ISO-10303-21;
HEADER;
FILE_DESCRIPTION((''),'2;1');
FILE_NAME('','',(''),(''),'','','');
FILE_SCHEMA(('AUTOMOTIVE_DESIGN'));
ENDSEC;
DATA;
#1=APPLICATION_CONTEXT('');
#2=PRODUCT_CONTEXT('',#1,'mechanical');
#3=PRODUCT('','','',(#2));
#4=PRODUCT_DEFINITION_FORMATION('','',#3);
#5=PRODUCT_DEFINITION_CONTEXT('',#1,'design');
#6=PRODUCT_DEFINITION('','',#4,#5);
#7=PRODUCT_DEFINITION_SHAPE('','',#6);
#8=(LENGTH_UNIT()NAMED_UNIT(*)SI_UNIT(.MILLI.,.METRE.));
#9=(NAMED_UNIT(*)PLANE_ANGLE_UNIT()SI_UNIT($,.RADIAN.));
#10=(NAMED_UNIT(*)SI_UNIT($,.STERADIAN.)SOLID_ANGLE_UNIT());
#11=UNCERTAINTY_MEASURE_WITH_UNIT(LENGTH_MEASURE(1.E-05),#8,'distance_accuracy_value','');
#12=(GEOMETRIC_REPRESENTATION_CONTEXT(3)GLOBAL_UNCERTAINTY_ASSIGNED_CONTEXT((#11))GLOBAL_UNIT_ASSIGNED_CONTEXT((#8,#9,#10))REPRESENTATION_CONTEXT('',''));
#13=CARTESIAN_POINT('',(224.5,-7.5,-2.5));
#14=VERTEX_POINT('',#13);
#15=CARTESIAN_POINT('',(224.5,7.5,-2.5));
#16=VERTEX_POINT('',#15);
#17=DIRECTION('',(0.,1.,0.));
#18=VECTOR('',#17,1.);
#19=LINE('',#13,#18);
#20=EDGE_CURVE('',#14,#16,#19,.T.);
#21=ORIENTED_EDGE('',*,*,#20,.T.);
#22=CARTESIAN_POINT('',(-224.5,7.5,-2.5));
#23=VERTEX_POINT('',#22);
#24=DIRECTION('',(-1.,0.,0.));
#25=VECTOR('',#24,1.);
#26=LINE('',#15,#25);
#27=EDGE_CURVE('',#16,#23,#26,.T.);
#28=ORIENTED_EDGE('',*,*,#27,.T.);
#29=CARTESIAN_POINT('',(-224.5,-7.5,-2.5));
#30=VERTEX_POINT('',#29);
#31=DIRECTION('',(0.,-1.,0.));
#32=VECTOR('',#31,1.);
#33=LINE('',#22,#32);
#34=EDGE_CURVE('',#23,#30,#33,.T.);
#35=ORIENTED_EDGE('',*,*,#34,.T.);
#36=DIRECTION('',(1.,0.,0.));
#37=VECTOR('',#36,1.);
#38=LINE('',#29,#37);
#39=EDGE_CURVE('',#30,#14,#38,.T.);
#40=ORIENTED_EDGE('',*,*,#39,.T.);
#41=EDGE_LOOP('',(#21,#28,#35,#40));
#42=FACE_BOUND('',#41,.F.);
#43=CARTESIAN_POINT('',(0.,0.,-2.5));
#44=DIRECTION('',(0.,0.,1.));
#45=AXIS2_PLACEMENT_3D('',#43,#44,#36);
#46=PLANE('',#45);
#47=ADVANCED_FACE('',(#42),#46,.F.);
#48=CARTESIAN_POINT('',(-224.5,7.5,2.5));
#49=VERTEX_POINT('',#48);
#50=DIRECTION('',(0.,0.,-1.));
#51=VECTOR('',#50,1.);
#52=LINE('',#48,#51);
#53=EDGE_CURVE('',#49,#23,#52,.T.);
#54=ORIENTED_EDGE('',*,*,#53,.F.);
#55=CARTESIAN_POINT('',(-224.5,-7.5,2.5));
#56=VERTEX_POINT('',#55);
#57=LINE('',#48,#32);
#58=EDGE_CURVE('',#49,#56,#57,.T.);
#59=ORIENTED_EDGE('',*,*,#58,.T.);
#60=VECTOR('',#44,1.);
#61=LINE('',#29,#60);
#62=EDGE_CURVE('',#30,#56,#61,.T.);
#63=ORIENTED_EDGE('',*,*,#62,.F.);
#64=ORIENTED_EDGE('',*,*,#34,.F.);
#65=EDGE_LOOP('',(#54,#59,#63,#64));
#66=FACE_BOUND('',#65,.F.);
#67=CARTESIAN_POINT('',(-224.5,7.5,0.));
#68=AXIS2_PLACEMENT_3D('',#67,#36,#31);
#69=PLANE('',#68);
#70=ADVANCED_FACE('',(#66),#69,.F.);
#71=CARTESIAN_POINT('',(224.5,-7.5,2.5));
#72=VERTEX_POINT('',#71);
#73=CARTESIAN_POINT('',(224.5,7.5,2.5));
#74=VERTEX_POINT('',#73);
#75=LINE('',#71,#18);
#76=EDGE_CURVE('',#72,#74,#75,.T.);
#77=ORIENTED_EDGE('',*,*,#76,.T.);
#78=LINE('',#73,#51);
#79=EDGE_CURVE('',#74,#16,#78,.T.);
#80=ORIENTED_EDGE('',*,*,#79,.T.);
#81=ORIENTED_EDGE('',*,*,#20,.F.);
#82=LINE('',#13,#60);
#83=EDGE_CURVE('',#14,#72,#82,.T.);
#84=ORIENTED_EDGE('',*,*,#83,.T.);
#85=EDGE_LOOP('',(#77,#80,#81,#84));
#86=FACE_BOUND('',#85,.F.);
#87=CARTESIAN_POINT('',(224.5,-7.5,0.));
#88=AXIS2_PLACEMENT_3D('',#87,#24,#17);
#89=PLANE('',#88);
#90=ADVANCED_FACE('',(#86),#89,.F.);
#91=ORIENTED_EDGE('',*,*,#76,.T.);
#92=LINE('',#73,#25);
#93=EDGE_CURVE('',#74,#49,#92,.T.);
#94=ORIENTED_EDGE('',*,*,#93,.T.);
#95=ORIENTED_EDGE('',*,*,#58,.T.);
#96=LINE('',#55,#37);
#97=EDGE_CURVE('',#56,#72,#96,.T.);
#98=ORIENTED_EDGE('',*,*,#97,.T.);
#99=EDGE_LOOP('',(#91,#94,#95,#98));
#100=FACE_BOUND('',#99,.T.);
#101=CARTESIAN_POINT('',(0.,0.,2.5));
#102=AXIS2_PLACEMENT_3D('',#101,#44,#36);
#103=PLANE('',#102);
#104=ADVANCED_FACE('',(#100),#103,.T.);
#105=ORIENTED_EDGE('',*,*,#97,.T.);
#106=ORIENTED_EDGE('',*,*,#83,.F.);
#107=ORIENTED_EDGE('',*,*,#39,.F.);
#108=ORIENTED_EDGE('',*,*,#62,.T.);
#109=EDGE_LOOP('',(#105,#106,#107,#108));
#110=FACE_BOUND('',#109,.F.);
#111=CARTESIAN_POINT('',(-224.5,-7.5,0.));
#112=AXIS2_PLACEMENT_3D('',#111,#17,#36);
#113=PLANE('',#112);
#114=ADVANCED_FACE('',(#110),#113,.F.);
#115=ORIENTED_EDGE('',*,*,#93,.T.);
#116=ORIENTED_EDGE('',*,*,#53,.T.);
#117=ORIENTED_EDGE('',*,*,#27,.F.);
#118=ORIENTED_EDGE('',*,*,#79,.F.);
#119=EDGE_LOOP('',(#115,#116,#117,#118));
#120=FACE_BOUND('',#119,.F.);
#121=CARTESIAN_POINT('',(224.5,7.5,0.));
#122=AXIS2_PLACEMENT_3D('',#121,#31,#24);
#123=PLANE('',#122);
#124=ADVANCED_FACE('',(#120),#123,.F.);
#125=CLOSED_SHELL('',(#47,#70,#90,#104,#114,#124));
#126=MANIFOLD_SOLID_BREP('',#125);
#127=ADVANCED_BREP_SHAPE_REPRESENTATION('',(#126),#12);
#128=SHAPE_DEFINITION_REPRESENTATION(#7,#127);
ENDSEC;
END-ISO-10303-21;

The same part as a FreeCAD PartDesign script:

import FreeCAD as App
import Part
import Sketcher

doc = App.newDocument("Part")
body = doc.addObject("PartDesign::Body", "Body")

# Sketch on XY plane
sketch1 = body.newObject("Sketcher::SketchObject", "Sketch")
sketch1.AttachmentSupport = (doc.getObject("XY_Plane"), [""])
sketch1.MapMode = "FlatFace"
sketch1.addGeometry(Part.LineSegment(App.Vector(-224, 8, 0), App.Vector(-224, -8, 0)), False)
sketch1.addGeometry(Part.LineSegment(App.Vector(-224, -8, 0), App.Vector(224, -8, 0)), False)
sketch1.addGeometry(Part.LineSegment(App.Vector(224, -8, 0), App.Vector(224, 8, 0)), False)
sketch1.addGeometry(Part.LineSegment(App.Vector(224, 8, 0), App.Vector(-224, 8, 0)), False)
sketch1.addConstraint(Sketcher.Constraint("Coincident", 0, 2, 1, 1))
sketch1.addConstraint(Sketcher.Constraint("Coincident", 1, 2, 2, 1))
sketch1.addConstraint(Sketcher.Constraint("Coincident", 2, 2, 3, 1))
sketch1.addConstraint(Sketcher.Constraint("Coincident", 3, 2, 0, 1))
sketch1.addConstraint(Sketcher.Constraint("Vertical", 0))
sketch1.addConstraint(Sketcher.Constraint("Horizontal", 1))
sketch1.addConstraint(Sketcher.Constraint("Vertical", 2))
sketch1.addConstraint(Sketcher.Constraint("Horizontal", 3))
sketch1.addConstraint(Sketcher.Constraint("Symmetric", 0, 2, 2, 2, -1, 1))
sketch1.addConstraint(Sketcher.Constraint("DistanceX", 1, 1, 1, 2, 449.0))
sketch1.addConstraint(Sketcher.Constraint("DistanceY", 0, 2, 0, 1, 15.0))
pad1 = body.newObject("PartDesign::Pad", "Pad")
pad1.Profile = sketch1
pad1.Length = 5
pad1.Midplane = True

doc.recompute()
